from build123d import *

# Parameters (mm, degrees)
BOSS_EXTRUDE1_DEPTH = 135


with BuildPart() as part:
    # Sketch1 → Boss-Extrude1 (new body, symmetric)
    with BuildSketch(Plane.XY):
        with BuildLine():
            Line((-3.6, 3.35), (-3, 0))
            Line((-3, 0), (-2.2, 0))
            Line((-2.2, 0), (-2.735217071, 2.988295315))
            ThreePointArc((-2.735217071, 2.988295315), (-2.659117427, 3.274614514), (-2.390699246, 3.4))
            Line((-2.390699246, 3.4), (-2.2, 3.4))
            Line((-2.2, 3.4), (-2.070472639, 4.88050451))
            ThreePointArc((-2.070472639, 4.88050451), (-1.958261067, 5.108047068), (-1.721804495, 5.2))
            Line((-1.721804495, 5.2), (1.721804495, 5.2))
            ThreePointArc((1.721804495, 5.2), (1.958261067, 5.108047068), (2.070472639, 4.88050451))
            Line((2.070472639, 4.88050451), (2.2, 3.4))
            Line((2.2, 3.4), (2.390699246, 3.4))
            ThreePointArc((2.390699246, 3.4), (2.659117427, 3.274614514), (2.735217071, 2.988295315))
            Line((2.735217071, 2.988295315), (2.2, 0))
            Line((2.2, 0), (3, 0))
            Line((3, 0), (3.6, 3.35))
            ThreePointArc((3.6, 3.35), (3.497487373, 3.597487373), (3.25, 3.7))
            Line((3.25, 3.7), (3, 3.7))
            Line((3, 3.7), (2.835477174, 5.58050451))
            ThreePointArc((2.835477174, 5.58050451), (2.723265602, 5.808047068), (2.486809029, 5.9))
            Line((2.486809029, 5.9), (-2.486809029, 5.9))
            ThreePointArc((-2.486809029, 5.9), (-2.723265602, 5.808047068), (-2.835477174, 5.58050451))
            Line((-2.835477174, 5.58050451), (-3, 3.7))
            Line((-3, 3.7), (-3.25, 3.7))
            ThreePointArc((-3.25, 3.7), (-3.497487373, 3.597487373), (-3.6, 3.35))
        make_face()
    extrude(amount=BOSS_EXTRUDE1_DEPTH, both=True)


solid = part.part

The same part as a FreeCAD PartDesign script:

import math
import FreeCAD as App
import Part
import Sketcher
Q = App.Units.Quantity

doc = App.newDocument("Part")
body = doc.addObject("PartDesign::Body", "Body")

sketch1 = body.newObject("Sketcher::SketchObject", "Sketch")
sketch1.AttachmentSupport = (doc.getObject("XY_Plane"), [""])
sketch1.MapMode = "FlatFace"
sketch1.addGeometry([
    Part.LineSegment(App.Vector(-3.6, 3.35, 0), App.Vector(-3, 0, 0)),
    Part.LineSegment(App.Vector(-3, 0, 0), App.Vector(-2.2, 0, 0)),
    Part.LineSegment(App.Vector(-2.2, 0, 0), App.Vector(-2.735217, 2.988295, 0)),
    Part.ArcOfCircle(Part.Circle(App.Vector(-2.390699, 3.05, 0), App.Vector(0, 0, 1), 0.35), math.radians(90), math.radians(190.154267)),
    Part.LineSegment(App.Vector(-2.390699, 3.4, 0), App.Vector(-2.2, 3.4, 0)),
    Part.LineSegment(App.Vector(-2.2, 3.4, 0), App.Vector(-2.070473, 4.880505, 0)),
    Part.ArcOfCircle(Part.Circle(App.Vector(-1.721804, 4.85, 0), App.Vector(0, 0, 1), 0.35), math.radians(90), math.radians(175)),
    Part.LineSegment(App.Vector(-1.721804, 5.2, 0), App.Vector(1.721804, 5.2, 0)),
    Part.ArcOfCircle(Part.Circle(App.Vector(1.721804, 4.85, 0), App.Vector(0, 0, 1), 0.35), math.radians(5), math.radians(90)),
    Part.LineSegment(App.Vector(2.070473, 4.880505, 0), App.Vector(2.2, 3.4, 0)),
    Part.LineSegment(App.Vector(2.2, 3.4, 0), App.Vector(2.390699, 3.4, 0)),
    Part.ArcOfCircle(Part.Circle(App.Vector(2.390699, 3.05, 0), App.Vector(0, 0, 1), 0.35), math.radians(-10.154267), math.radians(90)),
    Part.LineSegment(App.Vector(2.735217, 2.988295, 0), App.Vector(2.2, 0, 0)),
    Part.LineSegment(App.Vector(2.2, 0, 0), App.Vector(3, 0, 0)),
    Part.LineSegment(App.Vector(3, 0, 0), App.Vector(3.6, 3.35, 0)),
    Part.ArcOfCircle(Part.Circle(App.Vector(3.25, 3.35, 0), App.Vector(0, 0, 1), 0.35), math.radians(0), math.radians(90)),
    Part.LineSegment(App.Vector(3.25, 3.7, 0), App.Vector(3, 3.7, 0)),
    Part.LineSegment(App.Vector(3, 3.7, 0), App.Vector(2.835477, 5.580505, 0)),
    Part.ArcOfCircle(Part.Circle(App.Vector(2.486809, 5.55, 0), App.Vector(0, 0, 1), 0.35), math.radians(5), math.radians(90)),
    Part.LineSegment(App.Vector(2.486809, 5.9, 0), App.Vector(-2.486809, 5.9, 0)),
    Part.ArcOfCircle(Part.Circle(App.Vector(-2.486809, 5.55, 0), App.Vector(0, 0, 1), 0.35), math.radians(90), math.radians(175)),
    Part.LineSegment(App.Vector(-2.835477, 5.580505, 0), App.Vector(-3, 3.7, 0)),
    Part.LineSegment(App.Vector(-3, 3.7, 0), App.Vector(-3.25, 3.7, 0)),
    Part.ArcOfCircle(Part.Circle(App.Vector(-3.25, 3.35, 0), App.Vector(0, 0, 1), 0.35), math.radians(90), math.radians(180)),
], False)
sketch1.addConstraint([
    Sketcher.Constraint("Coincident", 0, 2, 1, 1),
    Sketcher.Constraint("Coincident", 1, 2, 2, 1),
    Sketcher.Constraint("Tangent", 2, 2, 3, 2),
    Sketcher.Constraint("Tangent", 3, 1, 4, 1),
    Sketcher.Constraint("Coincident", 4, 2, 5, 1),
    Sketcher.Constraint("Tangent", 5, 2, 6, 2),
    Sketcher.Constraint("Tangent", 6, 1, 7, 1),
    Sketcher.Constraint("Tangent", 7, 2, 8, 2),
    Sketcher.Constraint("Tangent", 8, 1, 9, 1),
    Sketcher.Constraint("Coincident", 9, 2, 10, 1),
    Sketcher.Constraint("Tangent", 10, 2, 11, 2),
    Sketcher.Constraint("Tangent", 11, 1, 12, 1),
    Sketcher.Constraint("Coincident", 12, 2, 13, 1),
    Sketcher.Constraint("Coincident", 13, 2, 14, 1),
    Sketcher.Constraint("Coincident", 14, 2, 15, 1),
    Sketcher.Constraint("Tangent", 15, 2, 16, 1),
    Sketcher.Constraint("Coincident", 16, 2, 17, 1),
    Sketcher.Constraint("Tangent", 17, 2, 18, 1),
    Sketcher.Constraint("Tangent", 18, 2, 19, 1),
    Sketcher.Constraint("Tangent", 19, 2, 20, 1),
    Sketcher.Constraint("Tangent", 20, 2, 21, 1),
    Sketcher.Constraint("Coincident", 21, 2, 22, 1),
    Sketcher.Constraint("Tangent", 22, 2, 23, 1),
    Sketcher.Constraint("Coincident", 23, 2, 0, 1),
    Sketcher.Constraint("Horizontal", 1),
    Sketcher.Constraint("Horizontal", 4),
    Sketcher.Constraint("Horizontal", 7),
    Sketcher.Constraint("Horizontal", 10),
    Sketcher.Constraint("Horizontal", 13),
    Sketcher.Constraint("Horizontal", 16),
    Sketcher.Constraint("Horizontal", 19),
    Sketcher.Constraint("Horizontal", 22),
    Sketcher.Constraint("Equal", 3, 6),
    Sketcher.Constraint("Equal", 6, 8),
    Sketcher.Constraint("Equal", 8, 11),
    Sketcher.Constraint("Equal", 11, 15),
    Sketcher.Constraint("Equal", 15, 18),
    Sketcher.Constraint("Equal", 18, 20),
    Sketcher.Constraint("Equal", 20, 23),
    Sketcher.Constraint("Symmetric", 1, 2, 12, 2, -1, 1),
    Sketcher.Constraint("Symmetric", 3, 3, 11, 3, -2),
    Sketcher.Constraint("Symmetric", 15, 3, 23, 3, -2),
    Sketcher.Constraint("Symmetric", 5, 2, 8, 1, -2),
    Sketcher.Constraint("Symmetric", 0, 2, 13, 2, -2),
    Sketcher.Constraint("Symmetric", 17, 2, 20, 2, -2),
    Sketcher.Constraint("Parallel", 0, 2),
    Sketcher.Constraint("Parallel", 12, 14),
    Sketcher.Constraint("Parallel", 9, 17),
    Sketcher.Constraint("Horizontal", 23, 3, 14, 2),
    Sketcher.Constraint("Vertical", 1, 2, 4, 2),
    Sketcher.Constraint("Vertical", 13, 2, 16, 2),
    Sketcher.Constraint("Angle", 5, Q("85 deg")),
    Sketcher.Constraint("Radius", 3, 0.35),
    Sketcher.Constraint("DistanceX", 1, 1, 1, 2, 0.8),
    Sketcher.Constraint("DistanceX", 0, 2, -1, 1, 3.0),
    Sketcher.Constraint("DistanceX", 16, 2, 16, 1, 0.25),
    Sketcher.Constraint("DistanceY", -1, 1, 3, 1, 3.4),
    Sketcher.Constraint("DistanceY", -1, 1, 6, 1, 5.2),
    Sketcher.Constraint("DistanceY", -1, 1, 15, 2, 3.7),
    Sketcher.Constraint("DistanceY", -1, 1, 18, 2, 5.9),
])
pad1 = body.newObject("PartDesign::Pad", "Pad")
pad1.Profile = sketch1
pad1.Length = 270
pad1.Midplane = True

doc.recompute()
